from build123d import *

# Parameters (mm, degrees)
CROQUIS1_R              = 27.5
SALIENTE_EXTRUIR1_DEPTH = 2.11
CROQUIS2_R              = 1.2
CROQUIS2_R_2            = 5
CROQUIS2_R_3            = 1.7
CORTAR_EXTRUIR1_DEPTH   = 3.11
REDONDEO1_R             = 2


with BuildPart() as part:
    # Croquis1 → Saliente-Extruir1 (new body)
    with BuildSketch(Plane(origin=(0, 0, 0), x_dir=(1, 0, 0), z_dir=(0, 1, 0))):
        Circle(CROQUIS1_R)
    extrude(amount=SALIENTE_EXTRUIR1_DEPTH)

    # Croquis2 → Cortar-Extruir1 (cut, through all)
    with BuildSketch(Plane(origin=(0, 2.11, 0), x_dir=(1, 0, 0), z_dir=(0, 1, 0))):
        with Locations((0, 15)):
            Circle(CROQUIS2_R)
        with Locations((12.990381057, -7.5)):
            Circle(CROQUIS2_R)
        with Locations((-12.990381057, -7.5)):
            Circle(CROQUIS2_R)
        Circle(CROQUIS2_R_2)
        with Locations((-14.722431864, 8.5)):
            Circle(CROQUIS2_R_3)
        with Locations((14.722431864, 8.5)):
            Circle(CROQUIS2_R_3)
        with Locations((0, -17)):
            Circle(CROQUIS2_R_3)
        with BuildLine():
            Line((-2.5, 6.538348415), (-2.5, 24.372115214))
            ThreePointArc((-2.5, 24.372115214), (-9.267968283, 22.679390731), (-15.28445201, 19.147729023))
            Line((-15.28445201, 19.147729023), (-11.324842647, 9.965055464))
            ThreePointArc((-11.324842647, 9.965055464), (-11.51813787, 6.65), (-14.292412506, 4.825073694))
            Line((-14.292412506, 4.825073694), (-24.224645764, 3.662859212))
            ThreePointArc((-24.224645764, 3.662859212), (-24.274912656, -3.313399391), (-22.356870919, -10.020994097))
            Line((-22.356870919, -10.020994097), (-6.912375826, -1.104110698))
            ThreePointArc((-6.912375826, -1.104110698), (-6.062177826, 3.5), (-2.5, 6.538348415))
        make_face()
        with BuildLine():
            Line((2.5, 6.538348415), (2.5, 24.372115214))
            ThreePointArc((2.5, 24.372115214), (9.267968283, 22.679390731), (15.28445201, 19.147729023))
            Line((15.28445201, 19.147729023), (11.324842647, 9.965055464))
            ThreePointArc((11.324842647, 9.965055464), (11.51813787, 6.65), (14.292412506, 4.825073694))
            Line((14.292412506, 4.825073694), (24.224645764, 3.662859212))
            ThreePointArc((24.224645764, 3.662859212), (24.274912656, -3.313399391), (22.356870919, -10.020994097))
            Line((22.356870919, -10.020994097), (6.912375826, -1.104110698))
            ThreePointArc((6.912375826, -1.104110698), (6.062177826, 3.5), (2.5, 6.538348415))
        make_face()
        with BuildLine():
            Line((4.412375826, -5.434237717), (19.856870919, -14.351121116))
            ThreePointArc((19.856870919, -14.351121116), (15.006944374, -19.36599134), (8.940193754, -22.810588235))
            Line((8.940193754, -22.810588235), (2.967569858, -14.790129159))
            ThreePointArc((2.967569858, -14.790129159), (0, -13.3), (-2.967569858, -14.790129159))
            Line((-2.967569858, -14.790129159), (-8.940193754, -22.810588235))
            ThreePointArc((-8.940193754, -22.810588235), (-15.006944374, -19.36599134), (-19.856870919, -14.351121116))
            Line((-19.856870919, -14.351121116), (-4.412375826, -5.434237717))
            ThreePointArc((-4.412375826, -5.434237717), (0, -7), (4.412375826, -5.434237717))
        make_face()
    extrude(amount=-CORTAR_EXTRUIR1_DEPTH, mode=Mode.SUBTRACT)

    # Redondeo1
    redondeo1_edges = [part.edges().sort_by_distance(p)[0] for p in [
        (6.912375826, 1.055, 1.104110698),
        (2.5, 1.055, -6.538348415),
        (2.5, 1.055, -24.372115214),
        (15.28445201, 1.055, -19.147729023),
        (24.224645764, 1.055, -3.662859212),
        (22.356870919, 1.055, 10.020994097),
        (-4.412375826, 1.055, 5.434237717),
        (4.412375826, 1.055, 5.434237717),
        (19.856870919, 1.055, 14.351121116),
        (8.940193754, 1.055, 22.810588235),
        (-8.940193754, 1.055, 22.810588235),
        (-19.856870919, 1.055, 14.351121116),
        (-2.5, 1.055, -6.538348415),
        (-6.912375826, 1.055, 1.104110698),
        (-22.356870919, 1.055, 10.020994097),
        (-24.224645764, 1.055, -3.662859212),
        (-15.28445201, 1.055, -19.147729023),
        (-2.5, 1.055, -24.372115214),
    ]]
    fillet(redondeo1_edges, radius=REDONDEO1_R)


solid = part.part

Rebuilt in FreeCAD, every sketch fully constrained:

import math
import FreeCAD as App
import Part
import Sketcher
Q = App.Units.Quantity


def edges_at(feature, points):
    """Names of the edges that pass closest to the given points."""
    edges = feature.Shape.Edges
    near = lambda p: min(range(len(edges)), key=lambda i: edges[i].distToShape(Part.Vertex(*p))[0])
    return sorted({f"Edge{near(p) + 1}" for p in points})

doc = App.newDocument("Part")
body = doc.addObject("PartDesign::Body", "Body")

# Sketch on XZ plane
sketch1 = body.newObject("Sketcher::SketchObject", "Sketch")
sketch1.AttachmentSupport = (doc.getObject("XZ_Plane"), [""])
sketch1.MapMode = "FlatFace"
sketch1.addGeometry(Part.Circle(App.Vector(0, 0, 0), App.Vector(0, 0, 1), 28), False)
sketch1.addConstraint([
    Sketcher.Constraint("Coincident", 0, 3, -1, 1),
    Sketcher.Constraint("Diameter", 0, 55.0),
])
pad1 = body.newObject("PartDesign::Pad", "Pad")
pad1.Profile = sketch1
pad1.Length = 2.11
pad1.Reversed = True

# Sketch on XZ plane
sketch2 = body.newObject("Sketcher::SketchObject", "Sketch001")
sketch2.AttachmentSupport = (doc.getObject("XZ_Plane"), [""])
sketch2.MapMode = "FlatFace"
sketch2.AttachmentOffset = App.Placement(App.Vector(0, 0, -2.11), App.Rotation())
sketch2.addGeometry([
    Part.Circle(App.Vector(0, -15, 0), App.Vector(0, 0, 1), 1.2),  # 0
    Part.Circle(App.Vector(13, 7.5, 0), App.Vector(0, 0, 1), 1.2),  # 1
    Part.Circle(App.Vector(-13, 7.5, 0), App.Vector(0, 0, 1), 1.2),  # 2
    Part.Circle(App.Vector(0, 0, 0), App.Vector(0, 0, 1), 5),  # 3
    Part.Circle(App.Vector(-14.7, -8.5, 0), App.Vector(0, 0, 1), 1.7),  # 4
    Part.Circle(App.Vector(14.7, -8.5, 0), App.Vector(0, 0, 1), 1.7),  # 5
    Part.Circle(App.Vector(0, 17, 0), App.Vector(0, 0, 1), 1.7),  # 6
    Part.LineSegment(App.Vector(-2.5, -6.5, 0), App.Vector(-2.5, -24.4, 0)),  # 7
    Part.ArcOfCircle(Part.Circle(App.Vector(0, 0, 0), App.Vector(0, 0, 1), 24.5), math.radians(-129), math.radians(-96)),  # 8
    Part.LineSegment(App.Vector(-15.3, -19.1, 0), App.Vector(-11.3, -10, 0)),  # 9
    Part.ArcOfCircle(Part.Circle(App.Vector(-14.7, -8.5, 0), App.Vector(0, 0, 1), 3.7), math.radians(-23), math.radians(83)),  # 10
    Part.LineSegment(App.Vector(-14.3, -4.8, 0), App.Vector(-24.2, -3.7, 0)),  # 11
    Part.ArcOfCircle(Part.Circle(App.Vector(0, 0, 0), App.Vector(0, 0, 1), 24.5), math.radians(156), math.radians(189)),  # 12
    Part.LineSegment(App.Vector(-22.4, 10, 0), App.Vector(-6.9, 1.1, 0)),  # 13
    Part.ArcOfCircle(Part.Circle(App.Vector(0, 0, 0), App.Vector(0, 0, 1), 7), math.radians(171), math.radians(249)),  # 14
    Part.LineSegment(App.Vector(2.5, -24.4, 0), App.Vector(2.5, -6.5, 0)),  # 15
    Part.ArcOfCircle(Part.Circle(App.Vector(0, 0, 0), App.Vector(0, 0, 1), 7), math.radians(-69), math.radians(9)),  # 16
    Part.LineSegment(App.Vector(6.9, 1.1, 0), App.Vector(22.4, 10, 0)),  # 17
    Part.ArcOfCircle(Part.Circle(App.Vector(0, 0, 0), App.Vector(0, 0, 1), 24.5), math.radians(-9), math.radians(24)),  # 18
    Part.LineSegment(App.Vector(24.2, -3.7, 0), App.Vector(14.3, -4.8, 0)),  # 19
    Part.ArcOfCircle(Part.Circle(App.Vector(14.7, -8.5, 0), App.Vector(0, 0, 1), 3.7), math.radians(97), math.radians(203)),  # 20
    Part.LineSegment(App.Vector(11.3, -10, 0), App.Vector(15.3, -19.1, 0)),  # 21
    Part.ArcOfCircle(Part.Circle(App.Vector(0, 0, 0), App.Vector(0, 0, 1), 24.5), math.radians(-84), math.radians(-51)),  # 22
    Part.LineSegment(App.Vector(19.9, 14.4, 0), App.Vector(4.4, 5.4, 0)),  # 23
    Part.ArcOfCircle(Part.Circle(App.Vector(0, 0, 0), App.Vector(0, 0, 1), 7), math.radians(51), math.radians(129)),  # 24
    Part.LineSegment(App.Vector(-4.4, 5.4, 0), App.Vector(-19.9, 14.4, 0)),  # 25
    Part.ArcOfCircle(Part.Circle(App.Vector(0, 0, 0), App.Vector(0, 0, 1), 24.5), math.radians(111), math.radians(144)),  # 26
    Part.LineSegment(App.Vector(-8.9, 22.8, 0), App.Vector(-3, 14.8, 0)),  # 27
    Part.ArcOfCircle(Part.Circle(App.Vector(0, 17, 0), App.Vector(0, 0, 1), 3.7), math.radians(-143), math.radians(-37)),  # 28
    Part.LineSegment(App.Vector(3, 14.8, 0), App.Vector(8.9, 22.8, 0)),  # 29
    Part.ArcOfCircle(Part.Circle(App.Vector(0, 0, 0), App.Vector(0, 0, 1), 24.5), math.radians(36), math.radians(69)),  # 30
], False)
sketch2.addConstraint([
    Sketcher.Constraint("Coincident", 7, 2, 8, 2),
    Sketcher.Constraint("Coincident", 8, 1, 9, 1),
    Sketcher.Constraint("Tangent", 9, 2, 10, 1),
    Sketcher.Constraint("Tangent", 10, 2, 11, 1),
    Sketcher.Constraint("Coincident", 11, 2, 12, 2),
    Sketcher.Constraint("Coincident", 12, 1, 13, 1),
    Sketcher.Constraint("Coincident", 13, 2, 14, 1),
    Sketcher.Constraint("Coincident", 14, 2, 7, 1),
    Sketcher.Constraint("Coincident", 15, 2, 16, 1),
    Sketcher.Constraint("Coincident", 16, 2, 17, 1),
    Sketcher.Constraint("Coincident", 17, 2, 18, 2),
    Sketcher.Constraint("Coincident", 18, 1, 19, 1),
    Sketcher.Constraint("Tangent", 19, 2, 20, 1),
    Sketcher.Constraint("Tangent", 20, 2, 21, 1),
    Sketcher.Constraint("Coincident", 21, 2, 22, 2),
    Sketcher.Constraint("Coincident", 22, 1, 15, 1),
    Sketcher.Constraint("Coincident", 23, 2, 24, 1),
    Sketcher.Constraint("Coincident", 24, 2, 25, 1),
    Sketcher.Constraint("Coincident", 25, 2, 26, 2),
    Sketcher.Constraint("Coincident", 26, 1, 27, 1),
    Sketcher.Constraint("Tangent", 27, 2, 28, 1),
    Sketcher.Constraint("Tangent", 28, 2, 29, 1),
    Sketcher.Constraint("Coincident", 29, 2, 30, 2),
    Sketcher.Constraint("Coincident", 30, 1, 23, 1),
    Sketcher.Constraint("Vertical", 7),
    Sketcher.Constraint("Vertical", 15),
    Sketcher.Constraint("Coincident", 3, 3, -1, 1),
    Sketcher.Constraint("Coincident", 8, 3, -1, 1),
    Sketcher.Constraint("Coincident", 12, 3, -1, 1),
    Sketcher.Constraint("Coincident", 14, 3, -1, 1),
    Sketcher.Constraint("Coincident", 16, 3, -1, 1),
    Sketcher.Constraint("Coincident", 18, 3, -1, 1),
    Sketcher.Constraint("Coincident", 22, 3, -1, 1),
    Sketcher.Constraint("Coincident", 24, 3, -1, 1),
    Sketcher.Constraint("Coincident", 26, 3, -1, 1),
    Sketcher.Constraint("Coincident", 30, 3, -1, 1),
    Sketcher.Constraint("Coincident", 10, 3, 4, 3),
    Sketcher.Constraint("Coincident", 20, 3, 5, 3),
    Sketcher.Constraint("Coincident", 28, 3, 6, 3),
    Sketcher.Constraint("Equal", 0, 1),
    Sketcher.Constraint("Equal", 1, 2),
    Sketcher.Constraint("Equal", 4, 5),
    Sketcher.Constraint("Equal", 5, 6),
    Sketcher.Constraint("Equal", 8, 12),
    Sketcher.Constraint("Equal", 14, 16),
    Sketcher.Constraint("Equal", 12, 18),
    Sketcher.Constraint("Equal", 10, 20),
    Sketcher.Constraint("Equal", 18, 22),
    Sketcher.Constraint("Equal", 16, 24),
    Sketcher.Constraint("Equal", 22, 26),
    Sketcher.Constraint("Equal", 20, 28),
    Sketcher.Constraint("Equal", 26, 30),
    Sketcher.Constraint("Symmetric", 1, 3, 2, 3, -2),
    Sketcher.Constraint("Symmetric", 4, 3, 5, 3, -2),
    Sketcher.Constraint("Symmetric", 27, 2, 28, 2, -2),
    Sketcher.Constraint("PointOnObject", 0, 3, -2),
    Sketcher.Constraint("Parallel", 17, 23),
    Sketcher.Constraint("Parallel", 13, 25),
    Sketcher.Constraint("Horizontal", 14, 2, 15, 2),
    Sketcher.Constraint("Horizontal", 13, 2, 16, 2),
    Sketcher.Constraint("Horizontal", 12, 1, 17, 2),
    Sketcher.Constraint("Horizontal", 11, 2, 18, 1),
    Sketcher.Constraint("Horizontal", 9, 2, 20, 2),
    Sketcher.Constraint("Horizontal", 23, 2, 24, 2),
    Sketcher.Constraint("Equal", 9, 11),
    Sketcher.Constraint("Equal", 17, 23),
    Sketcher.Constraint("Equal", 21, 27),
    Sketcher.Constraint("Diameter", 3, 10.0),
    Sketcher.Constraint("Radius", 14, 7.0),
    Sketcher.Constraint("Diameter", 0, 2.4),
    Sketcher.Constraint("Diameter", 4, 3.4),
    Sketcher.Constraint("Radius", 8, 24.5),
    Sketcher.Constraint("Radius", 10, 3.7),
    Sketcher.Constraint("Angle", 13, Q("-30 deg")),
    Sketcher.Constraint("Distance", 9, 10.0),
    Sketcher.Constraint("DistanceY", 0, 3, -1, 1, 15.0),
    Sketcher.Constraint("DistanceY", -1, 1, 6, 3, 17.0),
    Sketcher.Constraint("DistanceY", 4, 3, 2, 3, 16.0),
    Sketcher.Constraint("DistanceX", 14, 2, 15, 2, 5.0),
    Sketcher.Constraint("DistanceY", -1, 1, 1, 3, 7.5),
    Sketcher.Constraint("DistanceX", 23, 2, 16, 2, 2.5),
    Sketcher.Constraint("DistanceX", -1, 1, 1, 3, 12.990381),
    Sketcher.Constraint("DistanceX", 4, 3, -1, 1, 14.722432),
])
pocket1 = body.newObject("PartDesign::Pocket", "Pocket")
pocket1.Profile = sketch2
pocket1.Type = "ThroughAll"
pocket1.Reversed = True
doc.recompute()

fillet = body.newObject("PartDesign::Fillet", "Fillet")
fillet.Base = (pocket1, edges_at(pocket1, [
    (6.912, 1.055, 1.104),
    (2.5, 1.055, -6.538),
    (2.5, 1.055, -24.372),
    (15.284, 1.055, -19.148),
    (24.225, 1.055, -3.663),
    (22.357, 1.055, 10.021),
    (-4.412, 1.055, 5.434),
    (4.412, 1.055, 5.434),
    (19.857, 1.055, 14.351),
    (8.94, 1.055, 22.811),
    (-8.94, 1.055, 22.811),
    (-19.857, 1.055, 14.351),
    (-2.5, 1.055, -6.538),
    (-6.912, 1.055, 1.104),
    (-22.357, 1.055, 10.021),
    (-24.225, 1.055, -3.663),
    (-15.284, 1.055, -19.148),
    (-2.5, 1.055, -24.372),
]))
fillet.Radius = 2

doc.recompute()
